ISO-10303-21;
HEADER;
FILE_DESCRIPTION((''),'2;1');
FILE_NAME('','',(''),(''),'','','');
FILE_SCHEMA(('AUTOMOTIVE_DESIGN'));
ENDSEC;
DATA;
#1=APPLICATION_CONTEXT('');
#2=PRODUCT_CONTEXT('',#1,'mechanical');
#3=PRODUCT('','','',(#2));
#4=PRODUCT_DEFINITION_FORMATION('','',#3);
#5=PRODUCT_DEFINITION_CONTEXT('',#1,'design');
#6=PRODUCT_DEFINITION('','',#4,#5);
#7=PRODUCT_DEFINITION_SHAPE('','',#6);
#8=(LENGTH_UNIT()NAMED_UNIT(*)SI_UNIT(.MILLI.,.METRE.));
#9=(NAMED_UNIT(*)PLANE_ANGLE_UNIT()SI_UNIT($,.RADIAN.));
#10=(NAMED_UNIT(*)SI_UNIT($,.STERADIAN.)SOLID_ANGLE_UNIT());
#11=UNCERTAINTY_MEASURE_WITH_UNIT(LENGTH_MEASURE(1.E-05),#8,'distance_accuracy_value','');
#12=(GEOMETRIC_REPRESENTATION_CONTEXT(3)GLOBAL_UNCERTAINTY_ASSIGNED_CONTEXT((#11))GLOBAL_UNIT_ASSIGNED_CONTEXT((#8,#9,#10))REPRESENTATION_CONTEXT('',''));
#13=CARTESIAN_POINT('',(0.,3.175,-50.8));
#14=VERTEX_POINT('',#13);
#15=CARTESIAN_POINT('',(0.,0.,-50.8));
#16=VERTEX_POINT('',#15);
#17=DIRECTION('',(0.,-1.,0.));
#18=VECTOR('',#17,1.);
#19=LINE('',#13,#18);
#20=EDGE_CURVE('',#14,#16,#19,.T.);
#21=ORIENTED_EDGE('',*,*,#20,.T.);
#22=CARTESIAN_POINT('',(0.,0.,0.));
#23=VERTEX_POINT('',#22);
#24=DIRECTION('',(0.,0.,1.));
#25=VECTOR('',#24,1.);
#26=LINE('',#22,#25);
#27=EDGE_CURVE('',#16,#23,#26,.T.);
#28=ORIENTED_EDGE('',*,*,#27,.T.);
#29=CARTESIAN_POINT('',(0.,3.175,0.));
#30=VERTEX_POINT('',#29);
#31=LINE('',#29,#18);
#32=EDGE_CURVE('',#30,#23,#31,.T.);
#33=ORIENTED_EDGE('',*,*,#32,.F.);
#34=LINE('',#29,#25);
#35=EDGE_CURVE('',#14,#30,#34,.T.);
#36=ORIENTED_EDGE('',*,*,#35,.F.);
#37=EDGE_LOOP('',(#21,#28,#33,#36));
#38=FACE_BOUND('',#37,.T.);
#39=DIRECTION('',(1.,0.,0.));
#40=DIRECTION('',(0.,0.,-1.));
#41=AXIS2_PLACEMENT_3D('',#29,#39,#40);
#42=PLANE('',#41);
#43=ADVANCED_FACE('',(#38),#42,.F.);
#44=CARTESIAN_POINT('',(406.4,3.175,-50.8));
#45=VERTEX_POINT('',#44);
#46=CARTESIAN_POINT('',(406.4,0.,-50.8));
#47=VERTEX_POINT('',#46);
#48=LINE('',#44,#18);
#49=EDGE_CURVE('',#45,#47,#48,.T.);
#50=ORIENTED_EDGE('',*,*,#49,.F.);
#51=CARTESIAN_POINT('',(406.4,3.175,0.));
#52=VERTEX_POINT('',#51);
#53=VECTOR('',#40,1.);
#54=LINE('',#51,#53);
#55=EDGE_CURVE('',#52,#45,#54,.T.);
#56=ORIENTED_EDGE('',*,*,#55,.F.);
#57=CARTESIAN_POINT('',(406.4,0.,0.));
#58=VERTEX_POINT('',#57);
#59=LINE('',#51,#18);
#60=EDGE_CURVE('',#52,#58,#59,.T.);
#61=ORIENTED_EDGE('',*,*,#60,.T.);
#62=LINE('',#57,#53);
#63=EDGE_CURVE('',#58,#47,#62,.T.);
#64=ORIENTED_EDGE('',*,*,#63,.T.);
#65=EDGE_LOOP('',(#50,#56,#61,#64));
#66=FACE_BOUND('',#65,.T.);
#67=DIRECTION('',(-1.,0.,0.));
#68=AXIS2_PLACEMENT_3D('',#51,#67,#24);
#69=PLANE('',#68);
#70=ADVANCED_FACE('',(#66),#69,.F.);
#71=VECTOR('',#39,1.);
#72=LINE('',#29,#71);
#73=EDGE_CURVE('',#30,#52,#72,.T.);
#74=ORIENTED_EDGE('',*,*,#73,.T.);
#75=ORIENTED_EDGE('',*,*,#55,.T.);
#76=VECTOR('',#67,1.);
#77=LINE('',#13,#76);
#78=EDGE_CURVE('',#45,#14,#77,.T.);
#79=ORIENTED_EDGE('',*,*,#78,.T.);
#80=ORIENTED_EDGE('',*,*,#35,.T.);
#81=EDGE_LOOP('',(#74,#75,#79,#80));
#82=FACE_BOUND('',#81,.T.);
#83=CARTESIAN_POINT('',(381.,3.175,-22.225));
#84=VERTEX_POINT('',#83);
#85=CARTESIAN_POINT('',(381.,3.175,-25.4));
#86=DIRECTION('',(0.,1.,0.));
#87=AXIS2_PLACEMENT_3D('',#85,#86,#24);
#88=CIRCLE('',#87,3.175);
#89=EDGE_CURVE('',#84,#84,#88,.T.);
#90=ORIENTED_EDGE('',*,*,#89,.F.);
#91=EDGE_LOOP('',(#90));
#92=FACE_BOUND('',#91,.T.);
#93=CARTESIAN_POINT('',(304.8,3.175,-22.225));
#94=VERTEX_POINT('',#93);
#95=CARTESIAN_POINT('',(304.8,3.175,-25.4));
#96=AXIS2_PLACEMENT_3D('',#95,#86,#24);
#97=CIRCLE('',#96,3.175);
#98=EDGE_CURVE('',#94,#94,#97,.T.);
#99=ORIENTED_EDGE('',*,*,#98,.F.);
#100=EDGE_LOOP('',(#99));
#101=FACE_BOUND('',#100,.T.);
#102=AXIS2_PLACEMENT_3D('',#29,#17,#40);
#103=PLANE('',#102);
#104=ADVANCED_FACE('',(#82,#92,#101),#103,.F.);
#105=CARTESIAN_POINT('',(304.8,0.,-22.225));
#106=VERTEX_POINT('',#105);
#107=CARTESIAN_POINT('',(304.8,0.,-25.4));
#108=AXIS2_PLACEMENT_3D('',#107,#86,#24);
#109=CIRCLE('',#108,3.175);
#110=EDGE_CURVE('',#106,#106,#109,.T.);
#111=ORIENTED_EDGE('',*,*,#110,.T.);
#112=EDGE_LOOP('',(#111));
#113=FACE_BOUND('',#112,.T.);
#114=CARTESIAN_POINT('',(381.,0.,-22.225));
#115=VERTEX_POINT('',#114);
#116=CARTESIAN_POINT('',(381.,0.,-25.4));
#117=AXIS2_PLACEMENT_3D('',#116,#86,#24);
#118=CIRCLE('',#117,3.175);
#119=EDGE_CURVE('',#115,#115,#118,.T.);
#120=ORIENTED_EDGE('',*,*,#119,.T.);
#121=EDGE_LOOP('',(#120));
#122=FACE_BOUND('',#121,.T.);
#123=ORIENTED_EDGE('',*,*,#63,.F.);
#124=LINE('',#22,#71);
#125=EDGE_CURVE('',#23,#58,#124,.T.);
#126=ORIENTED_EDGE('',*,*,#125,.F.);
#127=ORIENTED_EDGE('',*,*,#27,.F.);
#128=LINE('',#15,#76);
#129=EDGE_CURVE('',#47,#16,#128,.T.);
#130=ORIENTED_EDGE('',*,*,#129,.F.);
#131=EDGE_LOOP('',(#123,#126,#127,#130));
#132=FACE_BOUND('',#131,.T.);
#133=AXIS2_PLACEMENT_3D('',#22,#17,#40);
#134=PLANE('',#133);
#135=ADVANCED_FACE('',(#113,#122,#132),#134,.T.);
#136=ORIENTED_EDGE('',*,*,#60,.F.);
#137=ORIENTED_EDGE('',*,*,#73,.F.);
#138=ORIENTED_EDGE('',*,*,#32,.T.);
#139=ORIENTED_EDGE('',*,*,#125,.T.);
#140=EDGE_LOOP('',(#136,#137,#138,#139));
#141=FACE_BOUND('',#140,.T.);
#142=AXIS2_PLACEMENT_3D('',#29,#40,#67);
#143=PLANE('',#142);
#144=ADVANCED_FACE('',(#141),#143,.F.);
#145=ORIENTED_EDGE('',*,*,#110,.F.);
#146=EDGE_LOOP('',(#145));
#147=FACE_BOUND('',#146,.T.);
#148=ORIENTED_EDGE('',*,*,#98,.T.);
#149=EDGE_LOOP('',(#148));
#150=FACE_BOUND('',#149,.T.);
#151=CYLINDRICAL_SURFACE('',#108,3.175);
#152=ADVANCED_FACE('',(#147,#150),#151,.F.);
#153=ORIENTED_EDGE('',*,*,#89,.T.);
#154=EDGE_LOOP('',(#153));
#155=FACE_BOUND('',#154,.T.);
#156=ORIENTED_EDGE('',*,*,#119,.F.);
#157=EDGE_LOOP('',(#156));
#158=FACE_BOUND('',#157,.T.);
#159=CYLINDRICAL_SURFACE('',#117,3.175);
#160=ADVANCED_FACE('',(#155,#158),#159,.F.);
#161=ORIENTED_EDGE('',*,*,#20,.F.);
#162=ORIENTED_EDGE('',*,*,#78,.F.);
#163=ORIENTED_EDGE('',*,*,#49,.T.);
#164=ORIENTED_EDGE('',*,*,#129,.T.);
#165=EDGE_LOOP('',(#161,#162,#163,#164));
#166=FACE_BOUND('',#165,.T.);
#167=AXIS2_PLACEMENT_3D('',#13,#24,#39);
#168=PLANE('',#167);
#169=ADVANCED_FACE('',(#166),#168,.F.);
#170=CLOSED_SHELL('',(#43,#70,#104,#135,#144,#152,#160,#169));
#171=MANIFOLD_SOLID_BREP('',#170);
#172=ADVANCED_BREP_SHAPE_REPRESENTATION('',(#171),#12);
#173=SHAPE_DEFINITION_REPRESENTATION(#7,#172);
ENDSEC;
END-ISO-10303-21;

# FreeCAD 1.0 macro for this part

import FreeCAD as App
import Part
import Sketcher

V = App.Vector
Q = App.Units.Quantity


def add_polygon(sketch, points):
    """Adds a closed chain of lines whose ends are joined by coincident constraints."""
    first, n = sketch.GeometryCount, len(points)
    for a, b in zip(points, points[1:] + points[:1]):
        sketch.addGeometry(Part.LineSegment(App.Vector(*a, 0), App.Vector(*b, 0)), False)
    for i in range(n):
        sketch.addConstraint(Sketcher.Constraint("Coincident", first + i, 2, first + (i + 1) % n, 1))

doc = App.newDocument("Part")
params = doc.addObject("Spreadsheet::Sheet", "Params")
for row, (alias, value) in enumerate([
    ("sketch1_width", "16 in"),
    ("sketch1_height", "2 in"),
    ("pad1_length", "0.125 in"),
    ("sketch2_diameter", "0.25 in"),
], start=1):
    params.set(f"A{row}", alias)
    params.set(f"B{row}", "=" + value)
    params.setAlias(f"B{row}", alias)

body = doc.addObject("PartDesign::Body", "Body")

# Sketch on XZ plane
sketch1 = body.newObject("Sketcher::SketchObject", "Sketch")
sketch1.AttachmentSupport = (doc.getObject("XZ_Plane"), [""])
sketch1.MapMode = "FlatFace"
add_polygon(sketch1, [(0, -50.8), (0, 0), (406.4, 0), (406.4, -50.8)])  # lines 0-3
sketch1.addConstraint(Sketcher.Constraint("Vertical", 0))
sketch1.addConstraint(Sketcher.Constraint("Horizontal", 1))
sketch1.addConstraint(Sketcher.Constraint("Vertical", 2))
sketch1.addConstraint(Sketcher.Constraint("Horizontal", 3))
sketch1.addConstraint(Sketcher.Constraint("Coincident", 0, 2, -1, 1))
sketch1.addConstraint(Sketcher.Constraint("DistanceX", 1, 1, 1, 2, Q("16 in")))
sketch1.addConstraint(Sketcher.Constraint("DistanceY", 0, 1, 0, 2, Q("2 in")))
sketch1.setExpression("Constraints[9]", "Params.sketch1_width")
sketch1.setExpression("Constraints[10]", "Params.sketch1_height")
pad1 = body.newObject("PartDesign::Pad", "Pad")
pad1.Profile = sketch1
pad1.setExpression("Length", "Params.pad1_length")
pad1.Reversed = True

# Sketch on XZ plane
sketch2 = body.newObject("Sketcher::SketchObject", "Sketch001")
sketch2.AttachmentSupport = (doc.getObject("XZ_Plane"), [""])
sketch2.MapMode = "FlatFace"
sketch2.AttachmentOffset = App.Placement(V(0, 0, -0.125 * 25.4), App.Rotation())
sketch2.addGeometry(Part.Circle(V(381, -25.4, 0), V(0, 0, 1), 3.175), False)
sketch2.addGeometry(Part.Circle(V(304.8, -25.4, 0), V(0, 0, 1), 3.175), False)
sketch2.addConstraint(Sketcher.Constraint("Equal", 0, 1))
sketch2.addConstraint(Sketcher.Constraint("Horizontal", 0, 3, 1, 3))
sketch2.addConstraint(Sketcher.Constraint("Diameter", 0, Q("0.25 in")))
sketch2.addConstraint(Sketcher.Constraint("DistanceX", -1, 1, 0, 3, Q("15 in")))
sketch2.addConstraint(Sketcher.Constraint("DistanceY", 0, 3, -1, 1, Q("1 in")))
sketch2.addConstraint(Sketcher.Constraint("DistanceX", -1, 1, 1, 3, Q("12 in")))
sketch2.setExpression("Constraints[2]", "Params.sketch2_diameter")
pocket1 = body.newObject("PartDesign::Pocket", "Pocket")
pocket1.Profile = sketch2
pocket1.Type = "ThroughAll"
pocket1.Reversed = True

doc.recompute()
